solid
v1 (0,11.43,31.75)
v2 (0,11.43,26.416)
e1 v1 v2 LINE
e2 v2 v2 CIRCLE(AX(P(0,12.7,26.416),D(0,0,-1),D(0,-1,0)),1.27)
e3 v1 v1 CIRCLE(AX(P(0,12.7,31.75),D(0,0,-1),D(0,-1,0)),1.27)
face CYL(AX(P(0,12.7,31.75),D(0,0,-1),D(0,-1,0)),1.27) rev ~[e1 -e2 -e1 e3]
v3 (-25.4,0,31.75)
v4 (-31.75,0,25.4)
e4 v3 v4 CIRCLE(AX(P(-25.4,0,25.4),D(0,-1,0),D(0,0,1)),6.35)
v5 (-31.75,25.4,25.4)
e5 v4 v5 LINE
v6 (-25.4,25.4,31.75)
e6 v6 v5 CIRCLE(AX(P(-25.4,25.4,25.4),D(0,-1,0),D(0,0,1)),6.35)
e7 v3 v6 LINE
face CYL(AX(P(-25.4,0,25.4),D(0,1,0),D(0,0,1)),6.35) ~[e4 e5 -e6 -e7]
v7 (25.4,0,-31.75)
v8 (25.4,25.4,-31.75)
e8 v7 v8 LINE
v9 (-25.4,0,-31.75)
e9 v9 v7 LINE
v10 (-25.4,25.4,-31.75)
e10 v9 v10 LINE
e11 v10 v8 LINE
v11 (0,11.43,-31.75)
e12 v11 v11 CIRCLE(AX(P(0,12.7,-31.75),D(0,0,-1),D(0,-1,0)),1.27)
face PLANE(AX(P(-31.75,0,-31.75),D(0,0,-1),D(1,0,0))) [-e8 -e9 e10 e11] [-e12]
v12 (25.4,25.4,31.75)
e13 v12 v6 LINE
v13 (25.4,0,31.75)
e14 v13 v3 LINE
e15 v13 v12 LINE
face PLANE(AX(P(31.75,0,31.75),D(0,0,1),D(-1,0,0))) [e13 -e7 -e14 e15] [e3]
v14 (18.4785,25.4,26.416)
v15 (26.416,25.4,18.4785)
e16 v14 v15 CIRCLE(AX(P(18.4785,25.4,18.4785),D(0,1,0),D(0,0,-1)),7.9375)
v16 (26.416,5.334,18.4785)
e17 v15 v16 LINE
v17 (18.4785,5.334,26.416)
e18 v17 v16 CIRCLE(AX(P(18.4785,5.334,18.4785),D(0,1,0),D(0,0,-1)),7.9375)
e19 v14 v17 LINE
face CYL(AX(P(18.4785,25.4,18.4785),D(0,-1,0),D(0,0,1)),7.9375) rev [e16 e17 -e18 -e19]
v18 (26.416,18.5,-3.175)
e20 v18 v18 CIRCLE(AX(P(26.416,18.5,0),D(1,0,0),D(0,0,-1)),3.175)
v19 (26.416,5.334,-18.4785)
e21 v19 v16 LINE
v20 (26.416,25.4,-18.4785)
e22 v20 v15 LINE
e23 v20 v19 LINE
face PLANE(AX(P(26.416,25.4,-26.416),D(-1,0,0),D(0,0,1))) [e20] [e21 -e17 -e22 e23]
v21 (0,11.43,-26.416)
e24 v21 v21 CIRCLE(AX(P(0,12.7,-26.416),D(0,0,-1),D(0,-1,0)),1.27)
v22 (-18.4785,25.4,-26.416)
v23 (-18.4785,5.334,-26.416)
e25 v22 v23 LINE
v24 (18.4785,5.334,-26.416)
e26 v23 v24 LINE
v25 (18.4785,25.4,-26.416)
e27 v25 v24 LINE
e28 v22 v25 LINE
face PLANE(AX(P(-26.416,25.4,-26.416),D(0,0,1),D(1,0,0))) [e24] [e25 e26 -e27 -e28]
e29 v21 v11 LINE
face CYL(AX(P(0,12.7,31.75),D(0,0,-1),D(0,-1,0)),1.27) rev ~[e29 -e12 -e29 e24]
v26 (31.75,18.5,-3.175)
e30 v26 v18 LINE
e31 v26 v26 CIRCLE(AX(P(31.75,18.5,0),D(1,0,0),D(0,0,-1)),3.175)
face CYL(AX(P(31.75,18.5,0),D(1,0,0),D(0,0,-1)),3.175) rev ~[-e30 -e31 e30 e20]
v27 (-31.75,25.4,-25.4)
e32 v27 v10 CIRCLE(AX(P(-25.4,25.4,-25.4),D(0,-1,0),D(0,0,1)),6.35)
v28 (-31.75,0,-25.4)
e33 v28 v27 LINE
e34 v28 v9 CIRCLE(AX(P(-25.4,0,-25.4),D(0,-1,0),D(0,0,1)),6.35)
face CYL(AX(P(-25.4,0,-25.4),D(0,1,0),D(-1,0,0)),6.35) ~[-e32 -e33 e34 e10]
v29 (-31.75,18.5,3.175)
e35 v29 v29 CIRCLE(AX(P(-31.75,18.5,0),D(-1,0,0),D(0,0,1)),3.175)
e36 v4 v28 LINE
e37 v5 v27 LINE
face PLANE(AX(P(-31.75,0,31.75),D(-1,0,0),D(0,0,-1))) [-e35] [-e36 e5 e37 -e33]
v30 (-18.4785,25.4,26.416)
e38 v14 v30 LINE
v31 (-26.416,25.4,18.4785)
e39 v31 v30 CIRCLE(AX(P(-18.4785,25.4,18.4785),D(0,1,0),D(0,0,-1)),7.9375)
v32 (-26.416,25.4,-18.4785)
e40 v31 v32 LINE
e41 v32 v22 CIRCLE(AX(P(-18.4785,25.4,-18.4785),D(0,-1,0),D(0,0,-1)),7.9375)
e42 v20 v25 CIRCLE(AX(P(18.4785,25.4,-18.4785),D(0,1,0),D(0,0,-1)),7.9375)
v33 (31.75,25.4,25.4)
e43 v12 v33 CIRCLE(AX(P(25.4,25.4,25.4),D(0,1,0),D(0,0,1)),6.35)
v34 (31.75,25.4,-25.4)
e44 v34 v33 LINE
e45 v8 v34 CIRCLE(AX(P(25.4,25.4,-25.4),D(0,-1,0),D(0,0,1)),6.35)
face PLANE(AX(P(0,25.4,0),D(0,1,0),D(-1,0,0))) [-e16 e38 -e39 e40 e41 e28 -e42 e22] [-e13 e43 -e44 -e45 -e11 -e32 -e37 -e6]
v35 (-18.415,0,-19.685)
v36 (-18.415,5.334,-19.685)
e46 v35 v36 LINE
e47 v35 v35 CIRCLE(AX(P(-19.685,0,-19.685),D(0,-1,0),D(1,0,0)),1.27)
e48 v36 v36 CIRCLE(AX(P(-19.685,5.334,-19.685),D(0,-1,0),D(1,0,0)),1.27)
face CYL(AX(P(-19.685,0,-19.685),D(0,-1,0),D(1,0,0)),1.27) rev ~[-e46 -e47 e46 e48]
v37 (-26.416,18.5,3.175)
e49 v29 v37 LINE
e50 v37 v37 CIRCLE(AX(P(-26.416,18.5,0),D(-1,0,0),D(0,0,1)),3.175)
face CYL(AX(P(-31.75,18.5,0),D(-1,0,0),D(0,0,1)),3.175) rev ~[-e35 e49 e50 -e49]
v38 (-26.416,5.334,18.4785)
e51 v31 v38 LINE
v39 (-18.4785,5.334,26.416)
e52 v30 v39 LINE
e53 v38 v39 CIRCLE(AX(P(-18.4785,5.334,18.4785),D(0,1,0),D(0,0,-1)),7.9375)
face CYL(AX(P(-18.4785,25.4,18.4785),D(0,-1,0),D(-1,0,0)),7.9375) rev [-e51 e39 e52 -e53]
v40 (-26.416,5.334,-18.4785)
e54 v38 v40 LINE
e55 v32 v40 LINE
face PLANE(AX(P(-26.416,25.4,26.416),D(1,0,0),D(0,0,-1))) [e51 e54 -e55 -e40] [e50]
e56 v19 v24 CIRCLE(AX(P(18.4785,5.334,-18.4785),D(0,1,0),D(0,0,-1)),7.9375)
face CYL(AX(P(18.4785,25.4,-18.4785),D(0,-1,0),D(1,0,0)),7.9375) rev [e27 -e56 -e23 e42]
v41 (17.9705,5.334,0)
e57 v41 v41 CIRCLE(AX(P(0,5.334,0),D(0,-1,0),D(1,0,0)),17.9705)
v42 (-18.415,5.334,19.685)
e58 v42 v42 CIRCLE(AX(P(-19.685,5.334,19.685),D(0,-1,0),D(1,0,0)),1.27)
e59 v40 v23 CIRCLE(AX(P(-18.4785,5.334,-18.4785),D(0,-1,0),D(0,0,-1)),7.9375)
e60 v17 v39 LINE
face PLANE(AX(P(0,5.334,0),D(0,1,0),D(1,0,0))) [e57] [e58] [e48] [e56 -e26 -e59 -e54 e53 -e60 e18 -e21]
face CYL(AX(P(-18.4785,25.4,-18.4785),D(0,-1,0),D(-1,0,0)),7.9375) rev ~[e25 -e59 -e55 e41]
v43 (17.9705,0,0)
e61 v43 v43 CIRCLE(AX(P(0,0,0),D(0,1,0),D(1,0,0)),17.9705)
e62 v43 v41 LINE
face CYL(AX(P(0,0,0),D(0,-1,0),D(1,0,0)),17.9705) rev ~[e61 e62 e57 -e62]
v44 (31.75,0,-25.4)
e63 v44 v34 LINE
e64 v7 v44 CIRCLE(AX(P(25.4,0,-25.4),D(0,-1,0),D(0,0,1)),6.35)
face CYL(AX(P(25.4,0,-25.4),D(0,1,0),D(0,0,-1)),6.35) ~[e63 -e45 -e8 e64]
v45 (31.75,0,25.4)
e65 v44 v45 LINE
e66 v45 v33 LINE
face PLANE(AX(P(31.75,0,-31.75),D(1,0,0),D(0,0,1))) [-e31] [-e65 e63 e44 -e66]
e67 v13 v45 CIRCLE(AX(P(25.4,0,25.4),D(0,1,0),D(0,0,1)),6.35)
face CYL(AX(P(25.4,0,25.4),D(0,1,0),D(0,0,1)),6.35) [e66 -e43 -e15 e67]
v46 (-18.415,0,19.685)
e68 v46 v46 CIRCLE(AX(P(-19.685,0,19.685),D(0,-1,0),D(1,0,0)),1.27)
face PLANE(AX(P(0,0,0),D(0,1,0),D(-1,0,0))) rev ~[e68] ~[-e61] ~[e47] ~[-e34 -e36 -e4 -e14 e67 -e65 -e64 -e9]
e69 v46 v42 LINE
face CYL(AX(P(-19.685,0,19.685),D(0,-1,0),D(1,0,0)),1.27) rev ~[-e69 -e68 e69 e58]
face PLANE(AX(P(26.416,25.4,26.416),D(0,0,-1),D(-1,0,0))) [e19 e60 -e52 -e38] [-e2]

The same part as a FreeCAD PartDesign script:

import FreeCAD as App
import Part
import Sketcher
Q = App.Units.Quantity


def edges_at(feature, points):
    """Names of the edges that pass closest to the given points."""
    edges = feature.Shape.Edges
    near = lambda p: min(range(len(edges)), key=lambda i: edges[i].distToShape(Part.Vertex(*p))[0])
    return sorted({f"Edge{near(p) + 1}" for p in points})

doc = App.newDocument("Part")
body = doc.addObject("PartDesign::Body", "Body")

# Sketch on XZ plane
sketch1 = doc.addObject("Sketcher::SketchObject", "Sketch")
body.addObject(sketch1)
sketch1.AttachmentSupport = (doc.XZ_Plane, [""])
sketch1.MapMode = "FlatFace"
sketch1.addGeometry(Part.LineSegment(App.Vector(-32, 32, 0), App.Vector(32, 32, 0)), False)
sketch1.addGeometry(Part.LineSegment(App.Vector(32, 32, 0), App.Vector(32, -32, 0)), False)
sketch1.addGeometry(Part.LineSegment(App.Vector(32, -32, 0), App.Vector(-32, -32, 0)), False)
sketch1.addGeometry(Part.LineSegment(App.Vector(-32, -32, 0), App.Vector(-32, 32, 0)), False)
sketch1.addConstraint(Sketcher.Constraint("Coincident", 0, 2, 1, 1))
sketch1.addConstraint(Sketcher.Constraint("Coincident", 1, 2, 2, 1))
sketch1.addConstraint(Sketcher.Constraint("Coincident", 2, 2, 3, 1))
sketch1.addConstraint(Sketcher.Constraint("Coincident", 3, 2, 0, 1))
sketch1.addConstraint(Sketcher.Constraint("Horizontal", 0))
sketch1.addConstraint(Sketcher.Constraint("Vertical", 1))
sketch1.addConstraint(Sketcher.Constraint("Horizontal", 2))
sketch1.addConstraint(Sketcher.Constraint("Vertical", 3))
sketch1.addConstraint(Sketcher.Constraint("Symmetric", 0, 2, 2, 2, -1, 1))
sketch1.addConstraint(Sketcher.Constraint("Equal", 2, 1))
sketch1.addConstraint(Sketcher.Constraint("DistanceX", 0, 1, 0, 2, Q("2.5 in")))
pad1 = doc.addObject("PartDesign::Pad", "Pad")
body.addObject(pad1)
pad1.Profile = sketch1
pad1.Length = Q("1 in")
pad1.Reversed = True
doc.recompute()

fillet = doc.addObject("PartDesign::Fillet", "Fillet")
body.addObject(fillet)
fillet.Base = (pad1, edges_at(pad1, [
    (31.75, 12.7, 31.75),
    (31.75, 12.7, -31.75),
    (-31.75, 12.7, -31.75),
    (-31.75, 12.7, 31.75),
]))
fillet.Radius = Q("0.25 in")

# Sketch on XZ plane
sketch2 = doc.addObject("Sketcher::SketchObject", "Sketch001")
body.addObject(sketch2)
sketch2.AttachmentSupport = (doc.XZ_Plane, [""])
sketch2.MapMode = "FlatFace"
sketch2.AttachmentOffset = App.Placement(App.Vector(0, 0, -1 * 25.4), App.Rotation())
sketch2.addGeometry(Part.LineSegment(App.Vector(26, -26, 0), App.Vector(-26, -26, 0)), False)
sketch2.addGeometry(Part.LineSegment(App.Vector(-26, -26, 0), App.Vector(-26, 26, 0)), False)
sketch2.addGeometry(Part.LineSegment(App.Vector(-26, 26, 0), App.Vector(26, 26, 0)), False)
sketch2.addGeometry(Part.LineSegment(App.Vector(26, 26, 0), App.Vector(26, -26, 0)), False)
sketch2.addConstraint(Sketcher.Constraint("Coincident", 0, 2, 1, 1))
sketch2.addConstraint(Sketcher.Constraint("Coincident", 1, 2, 2, 1))
sketch2.addConstraint(Sketcher.Constraint("Coincident", 2, 2, 3, 1))
sketch2.addConstraint(Sketcher.Constraint("Coincident", 3, 2, 0, 1))
sketch2.addConstraint(Sketcher.Constraint("Horizontal", 0))
sketch2.addConstraint(Sketcher.Constraint("Vertical", 1))
sketch2.addConstraint(Sketcher.Constraint("Horizontal", 2))
sketch2.addConstraint(Sketcher.Constraint("Vertical", 3))
sketch2.addConstraint(Sketcher.Constraint("Symmetric", 0, 2, 2, 2, -1, 1))
sketch2.addConstraint(Sketcher.Constraint("Equal", 2, 1))
sketch2.addConstraint(Sketcher.Constraint("DistanceX", 0, 2, 0, 1, Q("2.08 in")))
pocket1 = doc.addObject("PartDesign::Pocket", "Pocket")
body.addObject(pocket1)
pocket1.Profile = sketch2
pocket1.Length = Q("0.79 in")
pocket1.Reversed = True
doc.recompute()

fillet2 = doc.addObject("PartDesign::Fillet", "Fillet001")
body.addObject(fillet2)
fillet2.Base = (pocket1, edges_at(pocket1, [
    (-26.416, 15.367, 26.416),
    (-26.416, 15.367, -26.416),
    (26.416, 15.367, -26.416),
    (26.416, 15.367, 26.416),
]))
fillet2.Radius = Q("0.3125 in")

# Sketch on XY plane
sketch3 = doc.addObject("Sketcher::SketchObject", "Sketch002")
body.addObject(sketch3)
sketch3.AttachmentSupport = (doc.XY_Plane, [""])
sketch3.MapMode = "FlatFace"
sketch3.AttachmentOffset = App.Placement(App.Vector(0, 0, 1.25 * 25.4), App.Rotation())
sketch3.addGeometry(Part.Circle(App.Vector(0, 12.7, 0), App.Vector(0, 0, 1), 1.3), False)
sketch3.addConstraint(Sketcher.Constraint("PointOnObject", 0, 3, -2))
sketch3.addConstraint(Sketcher.Constraint("Diameter", 0, Q("0.1 in")))
sketch3.addConstraint(Sketcher.Constraint("DistanceY", -1, 1, 0, 3, Q("0.5 in")))
doc.recompute()
hole = doc.addObject("PartDesign::Hole", "Hole")
body.addObject(hole)
hole.Profile = sketch3
hole.ThreadType = "None"
hole.Diameter = Q("0.1 in")
hole.DepthType = "Dimension"
hole.Depth = Q("3 in")
hole.DrillPoint = "Angled"
hole.DrillPointAngle = 118

# Sketch on XZ plane
sketch4 = doc.addObject("Sketcher::SketchObject", "Sketch003")
body.addObject(sketch4)
sketch4.AttachmentSupport = (doc.XZ_Plane, [""])
sketch4.MapMode = "FlatFace"
sketch4.addGeometry(Part.Circle(App.Vector(0, 0, 0), App.Vector(0, 0, 1), 18), False)
sketch4.addGeometry(Part.Circle(App.Vector(-19.7, -19.7, 0), App.Vector(0, 0, 1), 1.3), False)
sketch4.addGeometry(Part.Circle(App.Vector(-19.7, 19.7, 0), App.Vector(0, 0, 1), 1.3), False)
sketch4.addConstraint(Sketcher.Constraint("Coincident", 0, 3, -1, 1))
sketch4.addConstraint(Sketcher.Constraint("Equal", 1, 2))
sketch4.addConstraint(Sketcher.Constraint("Symmetric", 1, 3, 2, 3, -1))
sketch4.addConstraint(Sketcher.Constraint("Diameter", 1, Q("0.1 in")))
sketch4.addConstraint(Sketcher.Constraint("Diameter", 0, Q("1.415 in")))
sketch4.addConstraint(Sketcher.Constraint("DistanceY", 1, 3, 2, 3, Q("1.55 in")))
sketch4.addConstraint(Sketcher.Constraint("DistanceX", 1, 3, -1, 1, Q("0.775 in")))
pocket2 = doc.addObject("PartDesign::Pocket", "Pocket001")
body.addObject(pocket2)
pocket2.Profile = sketch4
pocket2.Length = Q("1 in")

# Sketch on YZ plane
sketch5 = doc.addObject("Sketcher::SketchObject", "Sketch004")
body.addObject(sketch5)
sketch5.AttachmentSupport = (doc.YZ_Plane, [""])
sketch5.MapMode = "FlatFace"
sketch5.AttachmentOffset = App.Placement(App.Vector(0, 0, 1.25 * 25.4), App.Rotation())
sketch5.addGeometry(Part.Circle(App.Vector(18.5, 0, 0), App.Vector(0, 0, 1), 3.2), False)
sketch5.addConstraint(Sketcher.Constraint("PointOnObject", 0, 3, -1))
sketch5.addConstraint(Sketcher.Constraint("Diameter", 0, Q("0.25 in")))
sketch5.addConstraint(Sketcher.Constraint("DistanceX", -1, 1, 0, 3, 18.5))
pocket3 = doc.addObject("PartDesign::Pocket", "Pocket002")
body.addObject(pocket3)
pocket3.Profile = sketch5
pocket3.Length = Q("0.25 in")

# Sketch on YZ plane
sketch6 = doc.addObject("Sketcher::SketchObject", "Sketch005")
body.addObject(sketch6)
sketch6.AttachmentSupport = (doc.YZ_Plane, [""])
sketch6.MapMode = "FlatFace"
sketch6.AttachmentOffset = App.Placement(App.Vector(0, 0, -1.25 * 25.4), App.Rotation())
sketch6.addGeometry(Part.Circle(App.Vector(18.5, 0, 0), App.Vector(0, 0, 1), 3.2), False)
sketch6.addConstraint(Sketcher.Constraint("PointOnObject", 0, 3, -1))
sketch6.addConstraint(Sketcher.Constraint("Diameter", 0, Q("0.25 in")))
sketch6.addConstraint(Sketcher.Constraint("DistanceX", -1, 1, 0, 3, 18.5))
pocket4 = doc.addObject("PartDesign::Pocket", "Pocket003")
body.addObject(pocket4)
pocket4.Profile = sketch6
pocket4.Length = Q("1 in")
pocket4.Reversed = True

doc.recompute()
